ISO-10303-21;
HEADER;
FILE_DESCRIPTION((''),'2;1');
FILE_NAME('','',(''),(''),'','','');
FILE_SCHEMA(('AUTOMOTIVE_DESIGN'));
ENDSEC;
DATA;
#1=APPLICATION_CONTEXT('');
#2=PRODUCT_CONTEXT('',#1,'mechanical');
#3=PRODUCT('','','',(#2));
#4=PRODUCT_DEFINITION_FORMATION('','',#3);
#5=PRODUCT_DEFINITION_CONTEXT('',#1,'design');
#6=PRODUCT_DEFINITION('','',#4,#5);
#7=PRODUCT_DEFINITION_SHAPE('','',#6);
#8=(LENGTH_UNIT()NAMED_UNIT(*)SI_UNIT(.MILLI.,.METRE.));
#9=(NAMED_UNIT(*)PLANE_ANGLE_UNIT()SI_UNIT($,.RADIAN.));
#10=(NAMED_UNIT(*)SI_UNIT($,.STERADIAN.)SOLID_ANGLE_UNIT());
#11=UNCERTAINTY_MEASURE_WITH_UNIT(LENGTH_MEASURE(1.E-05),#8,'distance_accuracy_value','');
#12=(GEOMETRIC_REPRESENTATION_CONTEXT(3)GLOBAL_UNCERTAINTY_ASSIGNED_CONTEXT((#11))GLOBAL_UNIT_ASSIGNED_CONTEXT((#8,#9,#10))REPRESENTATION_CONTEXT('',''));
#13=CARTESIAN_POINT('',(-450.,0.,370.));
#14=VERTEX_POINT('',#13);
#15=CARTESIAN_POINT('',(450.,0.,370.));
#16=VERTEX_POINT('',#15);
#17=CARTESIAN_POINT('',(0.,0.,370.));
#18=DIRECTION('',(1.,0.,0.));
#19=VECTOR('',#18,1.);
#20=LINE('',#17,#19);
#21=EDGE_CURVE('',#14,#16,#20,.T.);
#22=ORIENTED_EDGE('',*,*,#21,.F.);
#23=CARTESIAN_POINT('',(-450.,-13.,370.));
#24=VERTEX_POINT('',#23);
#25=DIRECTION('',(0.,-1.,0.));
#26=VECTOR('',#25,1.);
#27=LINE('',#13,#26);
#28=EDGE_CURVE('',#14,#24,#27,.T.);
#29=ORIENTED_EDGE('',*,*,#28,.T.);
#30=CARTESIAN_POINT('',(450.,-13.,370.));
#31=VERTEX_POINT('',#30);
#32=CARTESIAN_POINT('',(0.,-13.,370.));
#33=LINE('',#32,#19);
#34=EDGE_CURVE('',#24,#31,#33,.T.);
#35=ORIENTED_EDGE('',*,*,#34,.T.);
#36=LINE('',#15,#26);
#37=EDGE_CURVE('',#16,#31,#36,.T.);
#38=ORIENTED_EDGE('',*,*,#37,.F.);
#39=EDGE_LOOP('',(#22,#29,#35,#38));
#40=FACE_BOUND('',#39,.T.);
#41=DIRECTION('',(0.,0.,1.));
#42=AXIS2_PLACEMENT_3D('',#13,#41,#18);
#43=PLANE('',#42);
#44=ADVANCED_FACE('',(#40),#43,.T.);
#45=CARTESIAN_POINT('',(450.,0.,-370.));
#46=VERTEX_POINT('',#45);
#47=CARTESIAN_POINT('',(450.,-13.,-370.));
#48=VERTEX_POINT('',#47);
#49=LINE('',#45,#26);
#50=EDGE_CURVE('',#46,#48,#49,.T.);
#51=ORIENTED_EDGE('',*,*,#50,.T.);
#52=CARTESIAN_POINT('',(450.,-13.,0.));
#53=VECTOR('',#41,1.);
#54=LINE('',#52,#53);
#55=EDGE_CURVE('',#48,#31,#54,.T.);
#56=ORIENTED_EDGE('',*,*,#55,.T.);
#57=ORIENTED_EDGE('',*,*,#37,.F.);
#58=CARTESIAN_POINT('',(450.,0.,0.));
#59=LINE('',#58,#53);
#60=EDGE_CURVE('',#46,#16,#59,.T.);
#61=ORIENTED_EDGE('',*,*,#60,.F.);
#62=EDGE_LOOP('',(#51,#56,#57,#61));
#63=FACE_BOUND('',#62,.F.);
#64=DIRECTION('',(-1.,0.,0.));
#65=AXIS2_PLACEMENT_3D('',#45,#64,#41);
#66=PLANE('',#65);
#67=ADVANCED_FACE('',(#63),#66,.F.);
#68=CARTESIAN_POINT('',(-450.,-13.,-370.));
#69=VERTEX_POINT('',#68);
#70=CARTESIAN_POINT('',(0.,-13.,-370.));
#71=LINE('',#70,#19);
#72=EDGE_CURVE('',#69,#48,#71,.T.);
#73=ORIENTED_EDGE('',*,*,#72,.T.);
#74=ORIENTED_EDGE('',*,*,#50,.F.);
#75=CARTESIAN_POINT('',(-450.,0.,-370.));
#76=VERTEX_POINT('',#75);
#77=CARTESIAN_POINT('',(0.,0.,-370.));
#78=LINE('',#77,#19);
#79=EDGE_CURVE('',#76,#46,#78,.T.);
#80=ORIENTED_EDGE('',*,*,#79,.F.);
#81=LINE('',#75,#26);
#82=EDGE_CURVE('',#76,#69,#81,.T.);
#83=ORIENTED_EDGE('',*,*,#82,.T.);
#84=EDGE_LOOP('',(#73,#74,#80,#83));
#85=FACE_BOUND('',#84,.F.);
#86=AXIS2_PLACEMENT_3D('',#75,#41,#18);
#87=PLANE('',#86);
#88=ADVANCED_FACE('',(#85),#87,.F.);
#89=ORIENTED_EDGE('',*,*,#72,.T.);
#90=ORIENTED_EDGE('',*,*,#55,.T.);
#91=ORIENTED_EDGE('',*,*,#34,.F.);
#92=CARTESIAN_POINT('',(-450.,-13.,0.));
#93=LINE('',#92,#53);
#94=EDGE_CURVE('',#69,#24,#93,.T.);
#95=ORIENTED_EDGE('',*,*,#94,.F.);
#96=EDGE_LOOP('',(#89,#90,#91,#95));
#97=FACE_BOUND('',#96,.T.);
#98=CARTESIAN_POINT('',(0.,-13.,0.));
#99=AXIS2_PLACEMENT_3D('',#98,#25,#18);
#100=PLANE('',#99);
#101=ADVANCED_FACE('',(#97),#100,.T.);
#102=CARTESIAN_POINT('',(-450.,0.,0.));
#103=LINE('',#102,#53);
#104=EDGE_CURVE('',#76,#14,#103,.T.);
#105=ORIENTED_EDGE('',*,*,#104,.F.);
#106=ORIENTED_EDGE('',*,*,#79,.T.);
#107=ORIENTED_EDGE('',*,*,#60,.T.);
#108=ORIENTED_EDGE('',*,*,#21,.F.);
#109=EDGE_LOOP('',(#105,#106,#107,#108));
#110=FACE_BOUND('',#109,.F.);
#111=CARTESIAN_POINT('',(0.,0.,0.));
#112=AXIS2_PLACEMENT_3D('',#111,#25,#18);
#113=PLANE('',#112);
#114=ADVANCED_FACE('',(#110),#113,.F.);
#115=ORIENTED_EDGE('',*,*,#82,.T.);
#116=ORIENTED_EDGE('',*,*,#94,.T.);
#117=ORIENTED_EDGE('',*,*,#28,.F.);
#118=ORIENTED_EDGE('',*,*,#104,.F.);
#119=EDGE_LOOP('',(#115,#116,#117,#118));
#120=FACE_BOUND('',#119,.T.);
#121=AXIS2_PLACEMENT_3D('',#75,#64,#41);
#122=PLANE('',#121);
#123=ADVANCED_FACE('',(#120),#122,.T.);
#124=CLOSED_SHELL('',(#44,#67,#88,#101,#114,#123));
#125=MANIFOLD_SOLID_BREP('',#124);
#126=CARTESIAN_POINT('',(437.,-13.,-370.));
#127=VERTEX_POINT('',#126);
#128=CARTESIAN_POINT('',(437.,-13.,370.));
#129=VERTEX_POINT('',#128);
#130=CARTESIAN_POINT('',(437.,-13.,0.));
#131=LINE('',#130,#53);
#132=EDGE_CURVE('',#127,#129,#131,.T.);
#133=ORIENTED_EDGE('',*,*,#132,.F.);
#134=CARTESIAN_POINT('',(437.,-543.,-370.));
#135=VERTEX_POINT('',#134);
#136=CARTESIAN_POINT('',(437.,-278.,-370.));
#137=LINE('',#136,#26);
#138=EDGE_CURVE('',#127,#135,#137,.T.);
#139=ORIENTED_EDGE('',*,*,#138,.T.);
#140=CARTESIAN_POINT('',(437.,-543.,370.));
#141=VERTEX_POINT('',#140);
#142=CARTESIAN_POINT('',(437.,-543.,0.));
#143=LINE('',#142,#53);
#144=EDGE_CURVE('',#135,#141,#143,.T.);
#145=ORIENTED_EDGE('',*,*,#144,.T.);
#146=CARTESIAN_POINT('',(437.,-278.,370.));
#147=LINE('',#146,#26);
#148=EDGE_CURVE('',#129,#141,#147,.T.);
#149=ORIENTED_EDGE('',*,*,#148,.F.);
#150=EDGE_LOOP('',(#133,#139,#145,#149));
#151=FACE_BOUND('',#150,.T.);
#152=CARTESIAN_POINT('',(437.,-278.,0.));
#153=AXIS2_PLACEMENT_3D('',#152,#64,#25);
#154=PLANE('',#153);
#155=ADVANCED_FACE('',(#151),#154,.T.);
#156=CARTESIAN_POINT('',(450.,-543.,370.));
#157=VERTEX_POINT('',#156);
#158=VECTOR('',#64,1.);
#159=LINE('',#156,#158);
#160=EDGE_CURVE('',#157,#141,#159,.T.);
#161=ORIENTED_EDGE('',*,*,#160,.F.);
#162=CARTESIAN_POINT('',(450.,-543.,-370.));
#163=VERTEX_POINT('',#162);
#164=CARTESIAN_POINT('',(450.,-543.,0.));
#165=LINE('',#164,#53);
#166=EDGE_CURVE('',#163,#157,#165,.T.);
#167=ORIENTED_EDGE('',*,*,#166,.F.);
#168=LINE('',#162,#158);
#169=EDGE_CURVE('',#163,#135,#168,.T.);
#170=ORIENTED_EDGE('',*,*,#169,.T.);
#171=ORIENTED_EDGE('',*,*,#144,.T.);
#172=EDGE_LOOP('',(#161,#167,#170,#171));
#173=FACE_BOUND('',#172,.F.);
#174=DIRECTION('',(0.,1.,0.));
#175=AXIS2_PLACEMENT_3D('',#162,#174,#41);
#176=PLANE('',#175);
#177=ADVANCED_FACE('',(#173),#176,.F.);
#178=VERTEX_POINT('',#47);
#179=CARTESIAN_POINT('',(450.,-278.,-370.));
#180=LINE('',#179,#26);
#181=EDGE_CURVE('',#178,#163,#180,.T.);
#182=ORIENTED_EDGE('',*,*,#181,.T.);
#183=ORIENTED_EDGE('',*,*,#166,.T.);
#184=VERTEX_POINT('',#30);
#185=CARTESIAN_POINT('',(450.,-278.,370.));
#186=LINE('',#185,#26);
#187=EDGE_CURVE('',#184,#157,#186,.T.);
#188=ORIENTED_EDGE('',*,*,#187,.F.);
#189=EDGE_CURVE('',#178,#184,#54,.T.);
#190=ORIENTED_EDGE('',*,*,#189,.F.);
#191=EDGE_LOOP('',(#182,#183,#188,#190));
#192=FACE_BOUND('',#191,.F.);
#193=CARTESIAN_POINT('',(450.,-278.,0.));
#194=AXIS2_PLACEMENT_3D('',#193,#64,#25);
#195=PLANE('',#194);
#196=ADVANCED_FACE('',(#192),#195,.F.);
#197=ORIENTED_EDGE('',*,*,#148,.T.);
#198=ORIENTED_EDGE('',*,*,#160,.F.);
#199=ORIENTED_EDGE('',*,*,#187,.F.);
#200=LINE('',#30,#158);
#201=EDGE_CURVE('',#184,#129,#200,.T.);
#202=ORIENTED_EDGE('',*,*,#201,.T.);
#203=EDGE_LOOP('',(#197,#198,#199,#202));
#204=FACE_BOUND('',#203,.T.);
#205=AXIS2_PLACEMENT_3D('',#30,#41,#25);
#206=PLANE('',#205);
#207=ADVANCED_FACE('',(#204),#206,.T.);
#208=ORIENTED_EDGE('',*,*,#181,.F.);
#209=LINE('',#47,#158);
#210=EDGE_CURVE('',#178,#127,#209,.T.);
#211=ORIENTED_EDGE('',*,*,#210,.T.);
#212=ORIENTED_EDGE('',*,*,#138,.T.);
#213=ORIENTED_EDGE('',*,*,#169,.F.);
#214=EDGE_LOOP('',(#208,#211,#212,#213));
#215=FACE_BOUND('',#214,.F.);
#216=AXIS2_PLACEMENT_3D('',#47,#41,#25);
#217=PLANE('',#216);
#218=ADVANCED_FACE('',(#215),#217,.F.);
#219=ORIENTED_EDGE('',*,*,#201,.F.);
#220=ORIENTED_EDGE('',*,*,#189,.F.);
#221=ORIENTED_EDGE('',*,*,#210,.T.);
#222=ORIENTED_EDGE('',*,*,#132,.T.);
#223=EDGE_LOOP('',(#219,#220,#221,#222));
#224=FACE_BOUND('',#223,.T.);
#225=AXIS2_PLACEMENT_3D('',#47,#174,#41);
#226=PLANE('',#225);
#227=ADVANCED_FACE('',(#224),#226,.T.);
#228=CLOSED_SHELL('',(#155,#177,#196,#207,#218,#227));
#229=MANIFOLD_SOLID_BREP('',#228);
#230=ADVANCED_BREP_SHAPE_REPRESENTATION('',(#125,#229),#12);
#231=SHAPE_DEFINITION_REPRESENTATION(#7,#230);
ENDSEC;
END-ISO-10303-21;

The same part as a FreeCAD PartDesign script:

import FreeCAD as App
import Part
import Sketcher
from FreeCAD import Vector

doc = App.newDocument("Part")
body = doc.addObject("PartDesign::Body", "Body")

# Sketch on XZ plane
sketch1 = body.newObject("Sketcher::SketchObject", "Sketch")
sketch1.AttachmentSupport = (doc.getObject("XZ_Plane"), [""])
sketch1.MapMode = "FlatFace"
sketch1.addGeometry(Part.LineSegment(Vector(-450, 370, 0), Vector(-450, -370, 0)), False)
sketch1.addGeometry(Part.LineSegment(Vector(-450, -370, 0), Vector(450, -370, 0)), False)
sketch1.addGeometry(Part.LineSegment(Vector(450, -370, 0), Vector(450, 370, 0)), False)
sketch1.addGeometry(Part.LineSegment(Vector(450, 370, 0), Vector(-450, 370, 0)), False)
sketch1.addConstraint(Sketcher.Constraint("Coincident", 0, 2, 1, 1))
sketch1.addConstraint(Sketcher.Constraint("Coincident", 1, 2, 2, 1))
sketch1.addConstraint(Sketcher.Constraint("Coincident", 2, 2, 3, 1))
sketch1.addConstraint(Sketcher.Constraint("Coincident", 3, 2, 0, 1))
sketch1.addConstraint(Sketcher.Constraint("Vertical", 0))
sketch1.addConstraint(Sketcher.Constraint("Horizontal", 1))
sketch1.addConstraint(Sketcher.Constraint("Vertical", 2))
sketch1.addConstraint(Sketcher.Constraint("Horizontal", 3))
sketch1.addConstraint(Sketcher.Constraint("Symmetric", 0, 2, 2, 2, -1, 1))
sketch1.addConstraint(Sketcher.Constraint("DistanceX", 1, 1, 1, 2, 900.0))
sketch1.addConstraint(Sketcher.Constraint("DistanceY", 0, 2, 0, 1, 740.0))
pad1 = body.newObject("PartDesign::Pad", "Pad")
pad1.Profile = sketch1
pad1.Length = 13
body2 = doc.addObject("PartDesign::Body", "Body001")

# Sketch on YZ plane
sketch2 = body2.newObject("Sketcher::SketchObject", "Sketch001")
sketch2.AttachmentSupport = (doc.getObject("YZ_Plane001"), [""])
sketch2.MapMode = "FlatFace"
sketch2.AttachmentOffset = App.Placement(Vector(0, 0, 450), App.Rotation())
sketch2.addGeometry(Part.LineSegment(Vector(-13, 370, 0), Vector(-13, -370, 0)), False)
sketch2.addGeometry(Part.LineSegment(Vector(-13, -370, 0), Vector(-543, -370, 0)), False)
sketch2.addGeometry(Part.LineSegment(Vector(-543, -370, 0), Vector(-543, 370, 0)), False)
sketch2.addGeometry(Part.LineSegment(Vector(-543, 370, 0), Vector(-13, 370, 0)), False)
sketch2.addConstraint(Sketcher.Constraint("Coincident", 0, 2, 1, 1))
sketch2.addConstraint(Sketcher.Constraint("Coincident", 1, 2, 2, 1))
sketch2.addConstraint(Sketcher.Constraint("Coincident", 2, 2, 3, 1))
sketch2.addConstraint(Sketcher.Constraint("Coincident", 3, 2, 0, 1))
sketch2.addConstraint(Sketcher.Constraint("Vertical", 0))
sketch2.addConstraint(Sketcher.Constraint("Horizontal", 1))
sketch2.addConstraint(Sketcher.Constraint("Vertical", 2))
sketch2.addConstraint(Sketcher.Constraint("Horizontal", 3))
sketch2.addConstraint(Sketcher.Constraint("DistanceX", 1, 2, 1, 1, 530.0))
sketch2.addConstraint(Sketcher.Constraint("DistanceY", 0, 2, 0, 1, 740.0))
sketch2.addConstraint(Sketcher.Constraint("DistanceX", 0, 2, -1, 1, 13.0))
sketch2.addConstraint(Sketcher.Constraint("DistanceY", 0, 2, -1, 1, 370.0))
pad2 = body2.newObject("PartDesign::Pad", "Pad001")
pad2.Profile = sketch2
pad2.Length = 13
pad2.Reversed = True

doc.recompute()
